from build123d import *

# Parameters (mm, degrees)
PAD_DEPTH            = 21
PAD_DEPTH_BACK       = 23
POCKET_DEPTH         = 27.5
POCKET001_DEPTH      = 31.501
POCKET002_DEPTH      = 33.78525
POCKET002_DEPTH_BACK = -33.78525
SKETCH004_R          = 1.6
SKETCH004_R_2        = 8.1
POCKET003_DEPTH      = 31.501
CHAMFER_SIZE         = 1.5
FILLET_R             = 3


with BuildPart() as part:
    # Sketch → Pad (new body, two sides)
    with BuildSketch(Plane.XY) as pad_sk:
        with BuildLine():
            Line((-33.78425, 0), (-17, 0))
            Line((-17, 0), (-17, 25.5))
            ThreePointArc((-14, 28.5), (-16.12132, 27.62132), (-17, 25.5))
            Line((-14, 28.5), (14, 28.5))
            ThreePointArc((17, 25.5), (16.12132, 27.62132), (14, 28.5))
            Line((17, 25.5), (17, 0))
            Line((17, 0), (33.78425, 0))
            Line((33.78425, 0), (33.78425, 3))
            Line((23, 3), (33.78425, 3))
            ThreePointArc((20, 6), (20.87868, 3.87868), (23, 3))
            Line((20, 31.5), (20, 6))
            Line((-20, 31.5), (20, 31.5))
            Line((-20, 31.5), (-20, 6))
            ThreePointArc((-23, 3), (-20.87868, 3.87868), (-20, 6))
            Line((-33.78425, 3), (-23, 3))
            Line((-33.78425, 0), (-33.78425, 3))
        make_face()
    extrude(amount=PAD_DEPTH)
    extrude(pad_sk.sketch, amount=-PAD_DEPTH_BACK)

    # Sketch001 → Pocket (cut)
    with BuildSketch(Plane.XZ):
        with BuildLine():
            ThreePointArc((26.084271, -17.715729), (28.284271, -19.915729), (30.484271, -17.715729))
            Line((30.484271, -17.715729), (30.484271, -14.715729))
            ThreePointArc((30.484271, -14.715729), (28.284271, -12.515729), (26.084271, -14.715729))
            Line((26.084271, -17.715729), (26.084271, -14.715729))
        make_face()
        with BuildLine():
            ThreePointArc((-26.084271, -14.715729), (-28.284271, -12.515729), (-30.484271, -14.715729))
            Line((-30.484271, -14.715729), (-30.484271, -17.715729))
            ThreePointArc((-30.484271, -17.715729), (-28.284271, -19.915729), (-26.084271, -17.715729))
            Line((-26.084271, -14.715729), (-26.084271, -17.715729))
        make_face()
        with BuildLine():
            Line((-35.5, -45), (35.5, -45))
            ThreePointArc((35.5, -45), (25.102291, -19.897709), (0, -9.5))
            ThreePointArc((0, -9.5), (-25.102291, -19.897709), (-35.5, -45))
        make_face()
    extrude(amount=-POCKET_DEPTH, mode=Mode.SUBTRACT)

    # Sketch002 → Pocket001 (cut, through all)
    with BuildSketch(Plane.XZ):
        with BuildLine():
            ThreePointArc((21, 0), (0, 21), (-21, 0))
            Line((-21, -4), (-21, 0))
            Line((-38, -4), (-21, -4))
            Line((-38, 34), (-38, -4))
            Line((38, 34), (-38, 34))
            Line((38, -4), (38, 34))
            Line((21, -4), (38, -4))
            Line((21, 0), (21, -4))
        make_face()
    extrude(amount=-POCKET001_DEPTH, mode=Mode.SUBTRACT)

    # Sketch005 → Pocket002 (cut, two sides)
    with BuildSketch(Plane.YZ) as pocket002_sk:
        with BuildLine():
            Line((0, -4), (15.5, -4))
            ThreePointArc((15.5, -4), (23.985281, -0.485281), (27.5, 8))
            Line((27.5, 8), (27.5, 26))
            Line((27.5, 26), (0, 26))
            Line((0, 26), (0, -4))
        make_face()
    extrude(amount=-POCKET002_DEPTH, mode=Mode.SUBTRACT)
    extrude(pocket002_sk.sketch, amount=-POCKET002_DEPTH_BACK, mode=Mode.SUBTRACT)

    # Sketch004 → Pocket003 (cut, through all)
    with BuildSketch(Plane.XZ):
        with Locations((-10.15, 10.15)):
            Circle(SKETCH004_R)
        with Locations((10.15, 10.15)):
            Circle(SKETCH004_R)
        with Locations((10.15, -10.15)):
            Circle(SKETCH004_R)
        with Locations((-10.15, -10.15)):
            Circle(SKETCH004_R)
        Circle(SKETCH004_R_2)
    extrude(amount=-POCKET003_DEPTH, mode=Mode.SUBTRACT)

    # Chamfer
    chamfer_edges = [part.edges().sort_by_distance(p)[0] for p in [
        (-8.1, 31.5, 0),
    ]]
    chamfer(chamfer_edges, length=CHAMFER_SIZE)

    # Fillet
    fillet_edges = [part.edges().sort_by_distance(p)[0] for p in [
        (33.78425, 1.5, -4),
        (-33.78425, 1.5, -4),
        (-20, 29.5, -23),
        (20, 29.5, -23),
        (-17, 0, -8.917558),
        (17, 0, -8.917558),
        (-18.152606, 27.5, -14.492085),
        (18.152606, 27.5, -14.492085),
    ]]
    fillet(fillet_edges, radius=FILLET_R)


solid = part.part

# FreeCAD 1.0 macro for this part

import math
import FreeCAD as App
import Part
import Sketcher


def edges_at(feature, points):
    """Names of the edges that pass closest to the given points."""
    edges = feature.Shape.Edges
    near = lambda p: min(range(len(edges)), key=lambda i: edges[i].distToShape(Part.Vertex(*p))[0])
    return sorted({f"Edge{near(p) + 1}" for p in points})

doc = App.newDocument("Part")
body = doc.addObject("PartDesign::Body", "Body")

# Sketch on XY plane
sketch1 = body.newObject("Sketcher::SketchObject", "Sketch")
sketch1.AttachmentSupport = (doc.getObject("XY_Plane"), [""])
sketch1.MapMode = "FlatFace"
sketch1.addGeometry(Part.LineSegment(App.Vector(-33.8, 0, 0), App.Vector(-17, 0, 0)), False)
sketch1.addGeometry(Part.LineSegment(App.Vector(-17, 0, 0), App.Vector(-17, 25.5, 0)), False)
sketch1.addGeometry(Part.ArcOfCircle(Part.Circle(App.Vector(-14, 25.5, 0), App.Vector(0, 0, 1), 3), math.radians(90), math.radians(180)), False)
sketch1.addGeometry(Part.LineSegment(App.Vector(-14, 28.5, 0), App.Vector(14, 28.5, 0)), False)
sketch1.addGeometry(Part.ArcOfCircle(Part.Circle(App.Vector(14, 25.5, 0), App.Vector(0, 0, 1), 3), math.radians(0), math.radians(90)), False)
sketch1.addGeometry(Part.LineSegment(App.Vector(17, 25.5, 0), App.Vector(17, 0, 0)), False)
sketch1.addGeometry(Part.LineSegment(App.Vector(17, 0, 0), App.Vector(33.8, 0, 0)), False)
sketch1.addGeometry(Part.LineSegment(App.Vector(33.8, 0, 0), App.Vector(33.8, 3, 0)), False)
sketch1.addGeometry(Part.LineSegment(App.Vector(33.8, 3, 0), App.Vector(23, 3, 0)), False)
sketch1.addGeometry(Part.ArcOfCircle(Part.Circle(App.Vector(23, 6, 0), App.Vector(0, 0, 1), 3), math.radians(-180), math.radians(-90)), False)
sketch1.addGeometry(Part.LineSegment(App.Vector(20, 6, 0), App.Vector(20, 31.5, 0)), False)
sketch1.addGeometry(Part.LineSegment(App.Vector(20, 31.5, 0), App.Vector(-20, 31.5, 0)), False)
sketch1.addGeometry(Part.LineSegment(App.Vector(-20, 31.5, 0), App.Vector(-20, 6, 0)), False)
sketch1.addGeometry(Part.ArcOfCircle(Part.Circle(App.Vector(-23, 6, 0), App.Vector(0, 0, 1), 3), math.radians(-90), math.radians(0)), False)
sketch1.addGeometry(Part.LineSegment(App.Vector(-23, 3, 0), App.Vector(-33.8, 3, 0)), False)
sketch1.addGeometry(Part.LineSegment(App.Vector(-33.8, 3, 0), App.Vector(-33.8, 0, 0)), False)
sketch1.addConstraint(Sketcher.Constraint("Coincident", 0, 2, 1, 1))
sketch1.addConstraint(Sketcher.Constraint("Tangent", 1, 2, 2, 2))
sketch1.addConstraint(Sketcher.Constraint("Tangent", 2, 1, 3, 1))
sketch1.addConstraint(Sketcher.Constraint("Tangent", 3, 2, 4, 2))
sketch1.addConstraint(Sketcher.Constraint("Tangent", 4, 1, 5, 1))
sketch1.addConstraint(Sketcher.Constraint("Coincident", 5, 2, 6, 1))
sketch1.addConstraint(Sketcher.Constraint("Coincident", 6, 2, 7, 1))
sketch1.addConstraint(Sketcher.Constraint("Coincident", 7, 2, 8, 1))
sketch1.addConstraint(Sketcher.Constraint("Tangent", 8, 2, 9, 2))
sketch1.addConstraint(Sketcher.Constraint("Tangent", 9, 1, 10, 1))
sketch1.addConstraint(Sketcher.Constraint("Coincident", 10, 2, 11, 1))
sketch1.addConstraint(Sketcher.Constraint("Coincident", 11, 2, 12, 1))
sketch1.addConstraint(Sketcher.Constraint("Tangent", 12, 2, 13, 2))
sketch1.addConstraint(Sketcher.Constraint("Tangent", 13, 1, 14, 1))
sketch1.addConstraint(Sketcher.Constraint("Coincident", 14, 2, 15, 1))
sketch1.addConstraint(Sketcher.Constraint("Coincident", 15, 2, 0, 1))
sketch1.addConstraint(Sketcher.Constraint("Horizontal", 0))
sketch1.addConstraint(Sketcher.Constraint("Vertical", 1))
sketch1.addConstraint(Sketcher.Constraint("Horizontal", 3))
sketch1.addConstraint(Sketcher.Constraint("Vertical", 5))
sketch1.addConstraint(Sketcher.Constraint("Horizontal", 6))
sketch1.addConstraint(Sketcher.Constraint("Vertical", 7))
sketch1.addConstraint(Sketcher.Constraint("Horizontal", 8))
sketch1.addConstraint(Sketcher.Constraint("Vertical", 10))
sketch1.addConstraint(Sketcher.Constraint("Horizontal", 11))
sketch1.addConstraint(Sketcher.Constraint("Vertical", 12))
sketch1.addConstraint(Sketcher.Constraint("Horizontal", 14))
sketch1.addConstraint(Sketcher.Constraint("Vertical", 15))
sketch1.addConstraint(Sketcher.Constraint("Equal", 2, 4))
sketch1.addConstraint(Sketcher.Constraint("Equal", 4, 9))
sketch1.addConstraint(Sketcher.Constraint("Equal", 9, 13))
sketch1.addConstraint(Sketcher.Constraint("Symmetric", 0, 2, 5, 2, -1, 1))
sketch1.addConstraint(Sketcher.Constraint("Symmetric", 9, 3, 13, 3, -2))
sketch1.addConstraint(Sketcher.Constraint("Symmetric", 6, 2, 15, 2, -2))
sketch1.addConstraint(Sketcher.Constraint("Equal", 5, 10))
sketch1.addConstraint(Sketcher.Constraint("Radius", 2, 3.000001))
sketch1.addConstraint(Sketcher.Constraint("DistanceX", 3, 1, 3, 2, 28.0))
sketch1.addConstraint(Sketcher.Constraint("DistanceX", 11, 2, 11, 1, 40.0))
sketch1.addConstraint(Sketcher.Constraint("DistanceY", 7, 1, 7, 2, 3.0))
sketch1.addConstraint(Sketcher.Constraint("DistanceY", 1, 1, 1, 2, 25.5))
sketch1.addConstraint(Sketcher.Constraint("DistanceX", 0, 1, 0, 2, 16.78425))
pad1 = body.newObject("PartDesign::Pad", "Pad")
pad1.Profile = sketch1
pad1.Type = "TwoLengths"
pad1.Length = 21
pad1.Length2 = 23

# Sketch on XZ plane
sketch2 = body.newObject("Sketcher::SketchObject", "Sketch001")
sketch2.AttachmentSupport = (doc.getObject("XZ_Plane"), [""])
sketch2.MapMode = "FlatFace"
sketch2.addGeometry(Part.ArcOfCircle(Part.Circle(App.Vector(28.3, -17.7, 0), App.Vector(0, 0, 1), 2.2), math.radians(180), math.radians(360)), False)
sketch2.addGeometry(Part.LineSegment(App.Vector(30.5, -17.7, 0), App.Vector(30.5, -14.7, 0)), False)
sketch2.addGeometry(Part.ArcOfCircle(Part.Circle(App.Vector(28.3, -14.7, 0), App.Vector(0, 0, 1), 2.2), math.radians(0), math.radians(180)), False)
sketch2.addGeometry(Part.LineSegment(App.Vector(26.1, -14.7, 0), App.Vector(26.1, -17.7, 0)), False)
sketch2.addGeometry(Part.ArcOfCircle(Part.Circle(App.Vector(-28.3, -14.7, 0), App.Vector(0, 0, 1), 2.2), math.radians(0), math.radians(180)), False)
sketch2.addGeometry(Part.LineSegment(App.Vector(-30.5, -14.7, 0), App.Vector(-30.5, -17.7, 0)), False)
sketch2.addGeometry(Part.ArcOfCircle(Part.Circle(App.Vector(-28.3, -17.7, 0), App.Vector(0, 0, 1), 2.2), math.radians(180), math.radians(360)), False)
sketch2.addGeometry(Part.LineSegment(App.Vector(-26.1, -17.7, 0), App.Vector(-26.1, -14.7, 0)), False)
sketch2.addGeometry(Part.LineSegment(App.Vector(-35.5, -45, 0), App.Vector(35.5, -45, 0)), False)
sketch2.addGeometry(Part.ArcOfCircle(Part.Circle(App.Vector(0, -45, 0), App.Vector(0, 0, 1), 35.5), math.radians(0), math.radians(90)), False)
sketch2.addGeometry(Part.ArcOfCircle(Part.Circle(App.Vector(0, -45, 0), App.Vector(0, 0, 1), 35.5), math.radians(90), math.radians(180)), False)
sketch2.addConstraint(Sketcher.Constraint("Tangent", 0, 2, 1, 1))
sketch2.addConstraint(Sketcher.Constraint("Tangent", 1, 2, 2, 1))
sketch2.addConstraint(Sketcher.Constraint("Tangent", 2, 2, 3, 1))
sketch2.addConstraint(Sketcher.Constraint("Tangent", 3, 2, 0, 1))
sketch2.addConstraint(Sketcher.Constraint("Tangent", 4, 2, 5, 1))
sketch2.addConstraint(Sketcher.Constraint("Tangent", 5, 2, 6, 1))
sketch2.addConstraint(Sketcher.Constraint("Tangent", 6, 2, 7, 1))
sketch2.addConstraint(Sketcher.Constraint("Tangent", 7, 2, 4, 1))
sketch2.addConstraint(Sketcher.Constraint("Coincident", 8, 2, 9, 1))
sketch2.addConstraint(Sketcher.Constraint("Tangent", 9, 2, 10, 1))
sketch2.addConstraint(Sketcher.Constraint("Coincident", 10, 2, 8, 1))
sketch2.addConstraint(Sketcher.Constraint("Vertical", 1))
sketch2.addConstraint(Sketcher.Constraint("Vertical", 3))
sketch2.addConstraint(Sketcher.Constraint("Vertical", 5))
sketch2.addConstraint(Sketcher.Constraint("Vertical", 7))
sketch2.addConstraint(Sketcher.Constraint("Horizontal", 8))
sketch2.addConstraint(Sketcher.Constraint("Equal", 2, 4))
sketch2.addConstraint(Sketcher.Constraint("Equal", 9, 10))
sketch2.addConstraint(Sketcher.Constraint("Symmetric", 2, 3, 4, 3, -2))
sketch2.addConstraint(Sketcher.Constraint("PointOnObject", 9, 3, -2))
sketch2.addConstraint(Sketcher.Constraint("PointOnObject", 9, 2, -2))
sketch2.addConstraint(Sketcher.Constraint("Horizontal", 0, 3, 6, 3))
sketch2.addConstraint(Sketcher.Constraint("Horizontal", 10, 3, 8, 2))
sketch2.addConstraint(Sketcher.Constraint("Radius", 0, 2.2))
sketch2.addConstraint(Sketcher.Constraint("Radius", 9, 35.499999))
sketch2.addConstraint(Sketcher.Constraint("DistanceY", 1, 1, 1, 2, 3.0))
sketch2.addConstraint(Sketcher.Constraint("DistanceY", 9, 3, -1, 1, 44.999999))
sketch2.addConstraint(Sketcher.Constraint("DistanceX", -1, 1, 0, 3, 28.284271))
sketch2.addConstraint(Sketcher.Constraint("DistanceY", 0, 3, -1, 1, 17.715729))
pocket1 = body.newObject("PartDesign::Pocket", "Pocket")
pocket1.Profile = sketch2
pocket1.Length = 27.5

# Sketch on XZ plane
sketch3 = body.newObject("Sketcher::SketchObject", "Sketch002")
sketch3.AttachmentSupport = (doc.getObject("XZ_Plane"), [""])
sketch3.MapMode = "FlatFace"
sketch3.addGeometry(Part.ArcOfCircle(Part.Circle(App.Vector(0, 0, 0), App.Vector(0, 0, 1), 21), math.radians(0), math.radians(180)), False)
sketch3.addGeometry(Part.LineSegment(App.Vector(21, 0, 0), App.Vector(21, -4, 0)), False)
sketch3.addGeometry(Part.LineSegment(App.Vector(21, -4, 0), App.Vector(38, -4, 0)), False)
sketch3.addGeometry(Part.LineSegment(App.Vector(38, -4, 0), App.Vector(38, 34, 0)), False)
sketch3.addGeometry(Part.LineSegment(App.Vector(38, 34, 0), App.Vector(-38, 34, 0)), False)
sketch3.addGeometry(Part.LineSegment(App.Vector(-38, 34, 0), App.Vector(-38, -4, 0)), False)
sketch3.addGeometry(Part.LineSegment(App.Vector(-38, -4, 0), App.Vector(-21, -4, 0)), False)
sketch3.addGeometry(Part.LineSegment(App.Vector(-21, -4, 0), App.Vector(-21, 0, 0)), False)
sketch3.addConstraint(Sketcher.Constraint("Tangent", 0, 1, 1, 1))
sketch3.addConstraint(Sketcher.Constraint("Coincident", 1, 2, 2, 1))
sketch3.addConstraint(Sketcher.Constraint("Coincident", 2, 2, 3, 1))
sketch3.addConstraint(Sketcher.Constraint("Coincident", 3, 2, 4, 1))
sketch3.addConstraint(Sketcher.Constraint("Coincident", 4, 2, 5, 1))
sketch3.addConstraint(Sketcher.Constraint("Coincident", 5, 2, 6, 1))
sketch3.addConstraint(Sketcher.Constraint("Coincident", 6, 2, 7, 1))
sketch3.addConstraint(Sketcher.Constraint("Tangent", 7, 2, 0, 2))
sketch3.addConstraint(Sketcher.Constraint("Vertical", 1))
sketch3.addConstraint(Sketcher.Constraint("Horizontal", 2))
sketch3.addConstraint(Sketcher.Constraint("Vertical", 3))
sketch3.addConstraint(Sketcher.Constraint("Horizontal", 4))
sketch3.addConstraint(Sketcher.Constraint("Vertical", 5))
sketch3.addConstraint(Sketcher.Constraint("Horizontal", 6))
sketch3.addConstraint(Sketcher.Constraint("Vertical", 7))
sketch3.addConstraint(Sketcher.Constraint("Coincident", 0, 3, -1, 1))
sketch3.addConstraint(Sketcher.Constraint("Symmetric", 2, 2, 5, 2, -2))
sketch3.addConstraint(Sketcher.Constraint("Radius", 0, 21.0))
sketch3.addConstraint(Sketcher.Constraint("DistanceX", 2, 1, 2, 2, 17.0))
sketch3.addConstraint(Sketcher.Constraint("DistanceY", 1, 2, 1, 1, 4.0))
sketch3.addConstraint(Sketcher.Constraint("DistanceY", 3, 1, 3, 2, 38.0))
pocket2 = body.newObject("PartDesign::Pocket", "Pocket001")
pocket2.Profile = sketch3
pocket2.Type = "ThroughAll"

# Sketch on YZ plane
sketch4 = body.newObject("Sketcher::SketchObject", "Sketch003")
sketch4.AttachmentSupport = (doc.getObject("YZ_Plane"), [""])
sketch4.MapMode = "FlatFace"
sketch4.addGeometry(Part.LineSegment(App.Vector(0, -4, 0), App.Vector(16, -4, 0)), False)
sketch4.addGeometry(Part.ArcOfCircle(Part.Circle(App.Vector(15, 8, 0), App.Vector(0, 0, 1), 12), math.radians(-90), math.radians(0)), False)
sketch4.addGeometry(Part.LineSegment(App.Vector(28, 8, 0), App.Vector(28, 26, 0)), False)
sketch4.addGeometry(Part.LineSegment(App.Vector(28, 26, 0), App.Vector(0, 26, 0)), False)
sketch4.addGeometry(Part.LineSegment(App.Vector(0, 26, 0), App.Vector(0, -4, 0)), False)
sketch4.addConstraint(Sketcher.Constraint("Tangent", 0, 2, 1, 1))
sketch4.addConstraint(Sketcher.Constraint("Tangent", 1, 2, 2, 1))
sketch4.addConstraint(Sketcher.Constraint("Coincident", 2, 2, 3, 1))
sketch4.addConstraint(Sketcher.Constraint("Coincident", 3, 2, 4, 1))
sketch4.addConstraint(Sketcher.Constraint("Coincident", 4, 2, 0, 1))
sketch4.addConstraint(Sketcher.Constraint("Horizontal", 0))
sketch4.addConstraint(Sketcher.Constraint("Vertical", 2))
sketch4.addConstraint(Sketcher.Constraint("Horizontal", 3))
sketch4.addConstraint(Sketcher.Constraint("Vertical", 4))
sketch4.addConstraint(Sketcher.Constraint("PointOnObject", 3, 2, -2))
sketch4.addConstraint(Sketcher.Constraint("Radius", 1, 12.000001))
sketch4.addConstraint(Sketcher.Constraint("DistanceY", 2, 1, 2, 2, 18.0))
sketch4.addConstraint(Sketcher.Constraint("DistanceX", 0, 1, 0, 2, 15.5))
sketch4.addConstraint(Sketcher.Constraint("DistanceY", -1, 1, 1, 3, 8.000001))
pocket3 = body.newObject("PartDesign::Pocket", "Pocket002")
pocket3.Profile = sketch4
pocket3.Type = "ThroughAll"
pocket3.Midplane = True

# Sketch on XZ plane
sketch5 = body.newObject("Sketcher::SketchObject", "Sketch004")
sketch5.AttachmentSupport = (doc.getObject("XZ_Plane"), [""])
sketch5.MapMode = "FlatFace"
sketch5.addGeometry(Part.Circle(App.Vector(-10.2, 10.2, 0), App.Vector(0, 0, 1), 1.6), False)
sketch5.addGeometry(Part.Circle(App.Vector(10.2, 10.2, 0), App.Vector(0, 0, 1), 1.6), False)
sketch5.addGeometry(Part.Circle(App.Vector(10.2, -10.2, 0), App.Vector(0, 0, 1), 1.6), False)
sketch5.addGeometry(Part.Circle(App.Vector(-10.2, -10.2, 0), App.Vector(0, 0, 1), 1.6), False)
sketch5.addGeometry(Part.Circle(App.Vector(0, 0, 0), App.Vector(0, 0, 1), 8.1), False)
sketch5.addConstraint(Sketcher.Constraint("Coincident", 4, 3, -1, 1))
sketch5.addConstraint(Sketcher.Constraint("Equal", 0, 1))
sketch5.addConstraint(Sketcher.Constraint("Equal", 1, 2))
sketch5.addConstraint(Sketcher.Constraint("Equal", 2, 3))
sketch5.addConstraint(Sketcher.Constraint("Symmetric", 0, 3, 2, 3, -1, 1))
sketch5.addConstraint(Sketcher.Constraint("Symmetric", 1, 3, 3, 3, -1, 1))
sketch5.addConstraint(Sketcher.Constraint("Symmetric", 0, 3, 1, 3, -2))
sketch5.addConstraint(Sketcher.Constraint("Diameter", 0, 3.2))
sketch5.addConstraint(Sketcher.Constraint("Diameter", 4, 16.2))
sketch5.addConstraint(Sketcher.Constraint("DistanceX", 0, 3, 1, 3, 20.3))
sketch5.addConstraint(Sketcher.Constraint("DistanceY", 2, 3, 1, 3, 20.3))
pocket4 = body.newObject("PartDesign::Pocket", "Pocket003")
pocket4.Profile = sketch5
pocket4.Type = "ThroughAll"
doc.recompute()

chamfer = body.newObject("PartDesign::Chamfer", "Chamfer")
chamfer.Base = (pocket4, edges_at(pocket4, [(-8.1, 31.5, 0)]))
chamfer.Size = 1.5
doc.recompute()

fillet = body.newObject("PartDesign::Fillet", "Fillet")
fillet.Base = (chamfer, edges_at(chamfer, [
    (33.784, 1.5, -4),
    (-33.784, 1.5, -4),
    (-20, 29.5, -23),
    (20, 29.5, -23),
    (-17, 0, -8.918),
    (17, 0, -8.918),
    (-18.153, 27.5, -14.492),
    (18.153, 27.5, -14.492),
]))
fillet.Radius = 3

doc.recompute()
